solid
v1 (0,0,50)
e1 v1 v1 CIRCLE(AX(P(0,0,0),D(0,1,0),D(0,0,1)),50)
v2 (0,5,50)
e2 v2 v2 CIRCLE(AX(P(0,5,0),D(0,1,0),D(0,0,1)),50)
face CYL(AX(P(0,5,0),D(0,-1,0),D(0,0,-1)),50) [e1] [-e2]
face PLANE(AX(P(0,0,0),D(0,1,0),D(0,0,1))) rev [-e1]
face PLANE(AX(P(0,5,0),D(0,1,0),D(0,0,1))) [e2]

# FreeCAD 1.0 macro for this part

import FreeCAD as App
import Part
import Sketcher

V = App.Vector

doc = App.newDocument("Part")
body = doc.addObject("PartDesign::Body", "Body")

# Sketch on XZ plane
sketch1 = doc.addObject("Sketcher::SketchObject", "Sketch")
body.addObject(sketch1)
sketch1.AttachmentSupport = (doc.XZ_Plane, [""])
sketch1.MapMode = "FlatFace"
sketch1.addGeometry(Part.Circle(V(0, 0, 0), V(0, 0, 1), 50), False)
sketch1.addConstraint(Sketcher.Constraint("Coincident", 0, 3, -1, 1))
sketch1.addConstraint(Sketcher.Constraint("Diameter", 0, 100.0))
pad1 = doc.addObject("PartDesign::Pad", "Pad")
body.addObject(pad1)
pad1.Profile = sketch1
pad1.Length = 5
pad1.Reversed = True

doc.recompute()
